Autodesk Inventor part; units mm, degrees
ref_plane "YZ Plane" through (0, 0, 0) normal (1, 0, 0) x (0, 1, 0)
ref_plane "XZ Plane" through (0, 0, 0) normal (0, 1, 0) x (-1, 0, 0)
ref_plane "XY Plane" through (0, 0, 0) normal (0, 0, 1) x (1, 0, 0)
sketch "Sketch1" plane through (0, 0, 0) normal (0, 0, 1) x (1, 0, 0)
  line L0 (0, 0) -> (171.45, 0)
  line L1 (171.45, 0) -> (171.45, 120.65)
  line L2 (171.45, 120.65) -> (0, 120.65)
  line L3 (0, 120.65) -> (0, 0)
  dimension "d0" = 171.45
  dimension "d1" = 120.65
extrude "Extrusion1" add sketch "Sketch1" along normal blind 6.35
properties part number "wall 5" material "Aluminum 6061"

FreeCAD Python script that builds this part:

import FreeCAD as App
import Part
import Sketcher
from FreeCAD import Vector
Q = App.Units.Quantity

doc = App.newDocument("Part")
body = doc.addObject("PartDesign::Body", "Body")

# Sketch on XY plane
sketch1 = body.newObject("Sketcher::SketchObject", "Sketch")
sketch1.AttachmentSupport = (doc.getObject("XY_Plane"), [""])
sketch1.MapMode = "FlatFace"
sketch1.addGeometry(Part.LineSegment(Vector(0, 120.65, 0), Vector(0, 0, 0)), False)
sketch1.addGeometry(Part.LineSegment(Vector(0, 0, 0), Vector(171.45, 0, 0)), False)
sketch1.addGeometry(Part.LineSegment(Vector(171.45, 0, 0), Vector(171.45, 120.65, 0)), False)
sketch1.addGeometry(Part.LineSegment(Vector(171.45, 120.65, 0), Vector(0, 120.65, 0)), False)
sketch1.addConstraint(Sketcher.Constraint("Coincident", 0, 2, 1, 1))
sketch1.addConstraint(Sketcher.Constraint("Coincident", 1, 2, 2, 1))
sketch1.addConstraint(Sketcher.Constraint("Coincident", 2, 2, 3, 1))
sketch1.addConstraint(Sketcher.Constraint("Coincident", 3, 2, 0, 1))
sketch1.addConstraint(Sketcher.Constraint("Vertical", 0))
sketch1.addConstraint(Sketcher.Constraint("Horizontal", 1))
sketch1.addConstraint(Sketcher.Constraint("Vertical", 2))
sketch1.addConstraint(Sketcher.Constraint("Horizontal", 3))
sketch1.addConstraint(Sketcher.Constraint("Coincident", 0, 2, -1, 1))
sketch1.addConstraint(Sketcher.Constraint("DistanceX", 1, 1, 1, 2, Q("6.75 in")))
sketch1.addConstraint(Sketcher.Constraint("DistanceY", 0, 2, 0, 1, Q("4.75 in")))
pad1 = body.newObject("PartDesign::Pad", "Pad")
pad1.Profile = sketch1
pad1.Length = Q("0.25 in")

doc.recompute()
